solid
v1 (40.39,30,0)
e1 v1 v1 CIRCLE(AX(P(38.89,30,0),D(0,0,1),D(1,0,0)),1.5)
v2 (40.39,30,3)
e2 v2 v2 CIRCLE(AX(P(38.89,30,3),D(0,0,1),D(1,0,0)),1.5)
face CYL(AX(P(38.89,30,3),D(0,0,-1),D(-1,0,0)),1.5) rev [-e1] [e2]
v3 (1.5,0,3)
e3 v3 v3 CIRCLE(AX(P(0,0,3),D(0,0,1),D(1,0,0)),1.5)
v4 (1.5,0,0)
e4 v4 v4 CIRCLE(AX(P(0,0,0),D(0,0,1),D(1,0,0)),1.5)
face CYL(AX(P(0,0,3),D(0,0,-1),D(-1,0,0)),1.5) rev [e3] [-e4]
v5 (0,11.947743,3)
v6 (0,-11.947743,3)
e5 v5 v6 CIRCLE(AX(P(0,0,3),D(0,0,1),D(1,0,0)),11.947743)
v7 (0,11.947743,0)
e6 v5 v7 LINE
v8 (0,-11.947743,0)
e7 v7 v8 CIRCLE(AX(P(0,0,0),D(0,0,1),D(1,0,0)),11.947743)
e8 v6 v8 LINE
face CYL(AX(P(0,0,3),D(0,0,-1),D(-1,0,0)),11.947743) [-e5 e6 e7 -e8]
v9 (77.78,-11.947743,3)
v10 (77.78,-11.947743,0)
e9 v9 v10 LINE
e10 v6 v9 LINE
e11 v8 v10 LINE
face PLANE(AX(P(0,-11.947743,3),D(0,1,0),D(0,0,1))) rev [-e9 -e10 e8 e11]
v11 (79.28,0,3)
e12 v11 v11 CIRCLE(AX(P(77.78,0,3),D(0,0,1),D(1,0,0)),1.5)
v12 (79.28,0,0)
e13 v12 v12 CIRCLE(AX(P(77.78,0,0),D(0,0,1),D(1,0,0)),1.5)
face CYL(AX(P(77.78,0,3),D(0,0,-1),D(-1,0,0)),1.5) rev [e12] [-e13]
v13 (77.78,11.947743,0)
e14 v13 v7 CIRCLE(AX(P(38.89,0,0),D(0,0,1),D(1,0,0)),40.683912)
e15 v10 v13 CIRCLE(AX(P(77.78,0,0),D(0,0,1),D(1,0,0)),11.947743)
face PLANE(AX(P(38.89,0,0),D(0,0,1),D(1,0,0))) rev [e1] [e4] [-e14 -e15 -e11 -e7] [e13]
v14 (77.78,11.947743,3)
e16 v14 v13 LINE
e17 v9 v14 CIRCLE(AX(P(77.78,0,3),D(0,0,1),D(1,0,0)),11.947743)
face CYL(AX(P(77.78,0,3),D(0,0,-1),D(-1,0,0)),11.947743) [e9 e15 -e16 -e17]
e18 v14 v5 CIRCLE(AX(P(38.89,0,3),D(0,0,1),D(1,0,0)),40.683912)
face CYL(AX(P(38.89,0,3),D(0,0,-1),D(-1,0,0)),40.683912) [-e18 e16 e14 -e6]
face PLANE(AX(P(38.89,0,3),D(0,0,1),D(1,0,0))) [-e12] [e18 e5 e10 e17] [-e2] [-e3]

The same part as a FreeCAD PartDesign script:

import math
import FreeCAD as App
import Part
import Sketcher

V = App.Vector

doc = App.newDocument("Part")
body = doc.addObject("PartDesign::Body", "Body")

# Sketch on XY plane
sketch1 = body.newObject("Sketcher::SketchObject", "Sketch")
sketch1.AttachmentSupport = (doc.getObject("XY_Plane"), [""])
sketch1.MapMode = "FlatFace"
sketch1.addGeometry(Part.LineSegment(V(0, -11.9, 0), V(77.8, -11.9, 0)), False)
sketch1.addGeometry(Part.ArcOfCircle(Part.Circle(V(77.8, 0, 0), V(0, 0, 1), 11.9), math.radians(-90), math.radians(90)), False)
sketch1.addGeometry(Part.ArcOfCircle(Part.Circle(V(38.9, 0, 0), V(0, 0, 1), 40.7), math.radians(17), math.radians(163)), False)
sketch1.addGeometry(Part.ArcOfCircle(Part.Circle(V(0, 0, 0), V(0, 0, 1), 11.9), math.radians(90), math.radians(270)), False)
sketch1.addGeometry(Part.Circle(V(0, 0, 0), V(0, 0, 1), 1.5), False)
sketch1.addGeometry(Part.Circle(V(77.8, 0, 0), V(0, 0, 1), 1.5), False)
sketch1.addGeometry(Part.Circle(V(38.9, 30, 0), V(0, 0, 1), 1.5), False)
sketch1.addConstraint(Sketcher.Constraint("Tangent", 0, 2, 1, 1))
sketch1.addConstraint(Sketcher.Constraint("Coincident", 1, 2, 2, 1))
sketch1.addConstraint(Sketcher.Constraint("Coincident", 2, 2, 3, 1))
sketch1.addConstraint(Sketcher.Constraint("Tangent", 3, 2, 0, 1))
sketch1.addConstraint(Sketcher.Constraint("Horizontal", 0))
sketch1.addConstraint(Sketcher.Constraint("Coincident", 3, 3, -1, 1))
sketch1.addConstraint(Sketcher.Constraint("Coincident", 4, 3, -1, 1))
sketch1.addConstraint(Sketcher.Constraint("Coincident", 5, 3, 1, 3))
sketch1.addConstraint(Sketcher.Constraint("Equal", 1, 3))
sketch1.addConstraint(Sketcher.Constraint("Equal", 4, 5))
sketch1.addConstraint(Sketcher.Constraint("Equal", 5, 6))
sketch1.addConstraint(Sketcher.Constraint("PointOnObject", 2, 3, -1))
sketch1.addConstraint(Sketcher.Constraint("PointOnObject", 2, 2, -2))
sketch1.addConstraint(Sketcher.Constraint("Vertical", 2, 3, 6, 3))
sketch1.addConstraint(Sketcher.Constraint("Vertical", 0, 2, 1, 2))
sketch1.addConstraint(Sketcher.Constraint("Diameter", 4, 3.0))
sketch1.addConstraint(Sketcher.Constraint("DistanceY", -1, 1, 6, 3, 30.0))
sketch1.addConstraint(Sketcher.Constraint("DistanceX", 0, 1, 0, 2, 77.78))
sketch1.addConstraint(Sketcher.Constraint("Radius", 2, 40.683912))
pad1 = body.newObject("PartDesign::Pad", "Pad")
pad1.Profile = sketch1
pad1.Length = 3

doc.recompute()
